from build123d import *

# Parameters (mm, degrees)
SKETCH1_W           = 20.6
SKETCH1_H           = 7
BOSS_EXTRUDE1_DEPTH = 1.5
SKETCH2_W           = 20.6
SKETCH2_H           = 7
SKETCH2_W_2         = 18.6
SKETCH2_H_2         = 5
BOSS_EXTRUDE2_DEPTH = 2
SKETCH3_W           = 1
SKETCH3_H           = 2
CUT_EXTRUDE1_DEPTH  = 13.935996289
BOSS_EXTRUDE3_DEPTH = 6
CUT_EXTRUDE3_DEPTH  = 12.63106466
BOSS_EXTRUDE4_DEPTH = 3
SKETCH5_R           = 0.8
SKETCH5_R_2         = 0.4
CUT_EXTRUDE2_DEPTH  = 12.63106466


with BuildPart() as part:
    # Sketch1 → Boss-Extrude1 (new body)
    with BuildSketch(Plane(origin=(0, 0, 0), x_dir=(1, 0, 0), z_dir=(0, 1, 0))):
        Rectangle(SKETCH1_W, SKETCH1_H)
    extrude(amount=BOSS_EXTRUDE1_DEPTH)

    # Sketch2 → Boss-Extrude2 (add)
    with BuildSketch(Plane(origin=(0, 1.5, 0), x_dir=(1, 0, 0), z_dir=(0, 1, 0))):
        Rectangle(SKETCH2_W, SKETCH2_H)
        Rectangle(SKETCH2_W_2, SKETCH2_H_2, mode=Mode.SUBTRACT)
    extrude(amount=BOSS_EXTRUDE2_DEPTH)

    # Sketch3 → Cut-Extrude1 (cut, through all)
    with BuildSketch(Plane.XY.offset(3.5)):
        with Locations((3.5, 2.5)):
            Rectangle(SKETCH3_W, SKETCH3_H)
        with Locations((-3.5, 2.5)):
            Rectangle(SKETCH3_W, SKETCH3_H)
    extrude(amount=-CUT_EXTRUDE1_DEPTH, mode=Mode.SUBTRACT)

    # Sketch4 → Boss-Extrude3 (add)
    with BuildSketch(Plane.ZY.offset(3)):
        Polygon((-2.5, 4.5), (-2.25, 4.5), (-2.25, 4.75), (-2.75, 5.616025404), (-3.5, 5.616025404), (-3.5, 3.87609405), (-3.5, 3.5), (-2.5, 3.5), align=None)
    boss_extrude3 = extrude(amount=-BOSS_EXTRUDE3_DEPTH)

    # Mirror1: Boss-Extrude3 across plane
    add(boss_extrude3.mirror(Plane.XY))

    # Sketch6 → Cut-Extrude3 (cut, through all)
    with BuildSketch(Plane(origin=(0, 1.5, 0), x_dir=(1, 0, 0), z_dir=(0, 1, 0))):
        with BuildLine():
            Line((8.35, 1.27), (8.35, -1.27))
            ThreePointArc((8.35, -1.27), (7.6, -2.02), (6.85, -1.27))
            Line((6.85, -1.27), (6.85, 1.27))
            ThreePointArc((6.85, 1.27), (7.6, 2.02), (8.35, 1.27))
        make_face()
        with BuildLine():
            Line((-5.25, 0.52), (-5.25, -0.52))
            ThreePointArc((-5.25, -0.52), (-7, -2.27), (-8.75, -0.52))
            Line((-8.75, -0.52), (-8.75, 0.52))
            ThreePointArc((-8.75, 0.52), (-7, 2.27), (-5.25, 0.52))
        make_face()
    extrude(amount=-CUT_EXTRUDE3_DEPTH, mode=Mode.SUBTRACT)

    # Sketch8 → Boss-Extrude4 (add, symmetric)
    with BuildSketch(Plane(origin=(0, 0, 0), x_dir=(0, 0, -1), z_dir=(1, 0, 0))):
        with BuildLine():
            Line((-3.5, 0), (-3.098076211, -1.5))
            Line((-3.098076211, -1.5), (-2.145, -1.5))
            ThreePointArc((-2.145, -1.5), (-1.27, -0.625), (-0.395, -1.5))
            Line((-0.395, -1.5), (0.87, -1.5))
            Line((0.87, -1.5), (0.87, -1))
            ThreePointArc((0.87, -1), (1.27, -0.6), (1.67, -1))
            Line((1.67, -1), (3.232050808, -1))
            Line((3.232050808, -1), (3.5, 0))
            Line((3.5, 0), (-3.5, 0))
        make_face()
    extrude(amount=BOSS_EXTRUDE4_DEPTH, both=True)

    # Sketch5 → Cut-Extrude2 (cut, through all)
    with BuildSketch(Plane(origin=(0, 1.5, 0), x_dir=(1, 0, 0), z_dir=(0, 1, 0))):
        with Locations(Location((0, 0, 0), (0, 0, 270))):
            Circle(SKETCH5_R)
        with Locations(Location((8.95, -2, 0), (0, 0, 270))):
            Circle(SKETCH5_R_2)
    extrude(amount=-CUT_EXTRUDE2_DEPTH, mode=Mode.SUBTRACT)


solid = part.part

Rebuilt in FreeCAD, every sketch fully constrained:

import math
import FreeCAD as App
import Part
import Sketcher
Q = App.Units.Quantity


def add_polygon(sketch, points):
    """Adds a closed chain of lines whose ends are joined by coincident constraints."""
    first, n = sketch.GeometryCount, len(points)
    for a, b in zip(points, points[1:] + points[:1]):
        sketch.addGeometry(Part.LineSegment(App.Vector(*a, 0), App.Vector(*b, 0)), False)
    for i in range(n):
        sketch.addConstraint(Sketcher.Constraint("Coincident", first + i, 2, first + (i + 1) % n, 1))

doc = App.newDocument("Part")
params = doc.addObject("Spreadsheet::Sheet", "Params")
for row, (alias, value) in enumerate([
    ("sketch1_height", "7 mm"),
    ("sketch1_width", "20.6 mm"),
    ("pad1_length", "1.5 mm"),
    ("sketch2_height", "7 mm"),
    ("sketch2_height2", "5 mm"),
    ("sketch2_width", "20.6 mm"),
    ("sketch2_width2", "18.6 mm"),
    ("pad2_length", "2 mm"),
    ("sketch3_width", "1 mm"),
    ("sketch3_height", "2 mm"),
    ("sketch4_width", "1 mm"),
    ("sketch4_length", "1 mm"),
    ("sketch4_width2", "0.25 mm"),
    ("pad3_length", "6 mm"),
    ("sketch5_radius", "0.75 mm"),
    ("sketch5_radius2", "1.75 mm"),
    ("sketch5_height", "2.54 mm"),
    ("sketch5_height2", "1.04 mm"),
    ("sketch6_radius", "0.4 mm"),
    ("sketch6_height", "7 mm"),
    ("sketch6_width", "0.5 mm"),
    ("pad4_length", "6 mm"),
    ("sketch7_diameter", "1.6 mm"),
    ("sketch7_diameter2", "0.8 mm"),
], start=1):
    params.set(f"A{row}", alias)
    params.set(f"B{row}", "=" + value)
    params.setAlias(f"B{row}", alias)

body = doc.addObject("PartDesign::Body", "Body")

# Sketch on XZ plane
sketch1 = body.newObject("Sketcher::SketchObject", "Sketch")
sketch1.AttachmentSupport = (doc.getObject("XZ_Plane"), [""])
sketch1.MapMode = "FlatFace"
add_polygon(sketch1, [(-10.3, -3.5), (-10.3, 3.5), (10.3, 3.5), (10.3, -3.5)])  # lines 0-3
sketch1.addConstraint([
    Sketcher.Constraint("Vertical", 0),
    Sketcher.Constraint("Horizontal", 1),
    Sketcher.Constraint("Vertical", 2),
    Sketcher.Constraint("Horizontal", 3),
    Sketcher.Constraint("Symmetric", 0, 2, 2, 2, -1, 1),
    Sketcher.Constraint("DistanceY", 0, 1, 0, 2, Q("7 mm")),
    Sketcher.Constraint("DistanceX", 1, 1, 1, 2, Q("20.6 mm")),
])
sketch1.setExpression("Constraints[9]", "Params.sketch1_height")
sketch1.setExpression("Constraints[10]", "Params.sketch1_width")
pad1 = body.newObject("PartDesign::Pad", "Pad")
pad1.Profile = sketch1
pad1.setExpression("Length", "Params.pad1_length")
pad1.Reversed = True

# Sketch on XZ plane
sketch2 = body.newObject("Sketcher::SketchObject", "Sketch001")
sketch2.AttachmentSupport = (doc.getObject("XZ_Plane"), [""])
sketch2.MapMode = "FlatFace"
sketch2.AttachmentOffset = App.Placement(App.Vector(0, 0, -1.5), App.Rotation())
add_polygon(sketch2, [(-10.3, -3.5), (-10.3, 3.5), (10.3, 3.5), (10.3, -3.5)])  # lines 0-3
add_polygon(sketch2, [(9.3, 2.5), (-9.3, 2.5), (-9.3, -2.5), (9.3, -2.5)])  # lines 4-7
sketch2.addConstraint([
    Sketcher.Constraint("Vertical", 0),
    Sketcher.Constraint("Horizontal", 1),
    Sketcher.Constraint("Vertical", 2),
    Sketcher.Constraint("Horizontal", 3),
    Sketcher.Constraint("Horizontal", 4),
    Sketcher.Constraint("Vertical", 5),
    Sketcher.Constraint("Horizontal", 6),
    Sketcher.Constraint("Vertical", 7),
    Sketcher.Constraint("Symmetric", 0, 2, 2, 2, -1, 1),
    Sketcher.Constraint("Symmetric", 4, 2, 6, 2, -1, 1),
    Sketcher.Constraint("DistanceY", 0, 1, 0, 2, Q("7 mm")),
    Sketcher.Constraint("DistanceY", 5, 2, 5, 1, Q("5 mm")),
    Sketcher.Constraint("DistanceX", 1, 1, 1, 2, Q("20.6 mm")),
    Sketcher.Constraint("DistanceX", 4, 2, 4, 1, Q("18.6 mm")),
])
sketch2.setExpression("Constraints[18]", "Params.sketch2_height")
sketch2.setExpression("Constraints[19]", "Params.sketch2_height2")
sketch2.setExpression("Constraints[20]", "Params.sketch2_width")
sketch2.setExpression("Constraints[21]", "Params.sketch2_width2")
pad2 = body.newObject("PartDesign::Pad", "Pad001")
pad2.Profile = sketch2
pad2.setExpression("Length", "Params.pad2_length")
pad2.Reversed = True

# Sketch on XY plane
sketch3 = body.newObject("Sketcher::SketchObject", "Sketch002")
sketch3.AttachmentSupport = (doc.getObject("XY_Plane"), [""])
sketch3.MapMode = "FlatFace"
sketch3.AttachmentOffset = App.Placement(App.Vector(0, 0, 3.5), App.Rotation())
add_polygon(sketch3, [(3, 3.5), (3, 1.5), (4, 1.5), (4, 3.5)])  # lines 0-3
add_polygon(sketch3, [(-4, 3.5), (-4, 1.5), (-3, 1.5), (-3, 3.5)])  # lines 4-7
sketch3.addConstraint([
    Sketcher.Constraint("Vertical", 0),
    Sketcher.Constraint("Horizontal", 1),
    Sketcher.Constraint("Vertical", 2),
    Sketcher.Constraint("Horizontal", 3),
    Sketcher.Constraint("Vertical", 4),
    Sketcher.Constraint("Horizontal", 5),
    Sketcher.Constraint("Vertical", 6),
    Sketcher.Constraint("Horizontal", 7),
    Sketcher.Constraint("Symmetric", 1, 2, 4, 2, -2),
    Sketcher.Constraint("Symmetric", 3, 2, 6, 2, -2),
    Sketcher.Constraint("DistanceX", 1, 1, 1, 2, Q("1 mm")),
    Sketcher.Constraint("DistanceY", 0, 2, 0, 1, Q("2 mm")),
    Sketcher.Constraint("DistanceX", -1, 1, 0, 2, Q("3 mm")),
    Sketcher.Constraint("DistanceY", -1, 1, 0, 2, Q("1.5 mm")),
])
sketch3.setExpression("Constraints[18]", "Params.sketch3_width")
sketch3.setExpression("Constraints[19]", "Params.sketch3_height")
pocket1 = body.newObject("PartDesign::Pocket", "Pocket")
pocket1.Profile = sketch3
pocket1.Type = "ThroughAll"

# Sketch on YZ plane
sketch4 = body.newObject("Sketcher::SketchObject", "Sketch003")
sketch4.AttachmentSupport = (doc.getObject("YZ_Plane"), [""])
sketch4.MapMode = "FlatFace"
sketch4.AttachmentOffset = App.Placement(App.Vector(0, 0, -3), App.Rotation())
add_polygon(sketch4, [(4.5, -2.5), (4.5, -2.25), (4.75, -2.25), (5.616025, -2.75), (5.616025, -3.5), (3.5, -3.5), (3.5, -2.5)])  # lines 0-6
sketch4.addConstraint([
    Sketcher.Constraint("Vertical", 0),
    Sketcher.Constraint("Horizontal", 1),
    Sketcher.Constraint("Vertical", 3),
    Sketcher.Constraint("Horizontal", 4),
    Sketcher.Constraint("Vertical", 5),
    Sketcher.Constraint("Horizontal", 6),
    Sketcher.Constraint("Equal", 1, 0),
    Sketcher.Constraint("Equal", 6, 5),
    Sketcher.Constraint("DistanceX", 6, 1, 6, 2, Q("1 mm")),
    Sketcher.Constraint("Angle", 2, Q("-30 deg")),
    Sketcher.Constraint("Distance", 2, Q("1 mm")),
    Sketcher.Constraint("DistanceX", 1, 1, 1, 2, Q("0.25 mm")),
    Sketcher.Constraint("DistanceX", -1, 1, 0, 2, Q("4.5 mm")),
    Sketcher.Constraint("DistanceY", 3, 2, -1, 1, Q("3.5 mm")),
])
sketch4.setExpression("Constraints[15]", "Params.sketch4_width")
sketch4.setExpression("Constraints[17]", "Params.sketch4_length")
sketch4.setExpression("Constraints[18]", "Params.sketch4_width2")
pad3 = body.newObject("PartDesign::Pad", "Pad002")
pad3.Profile = sketch4
pad3.setExpression("Length", "Params.pad3_length")
doc.recompute()

mirrored = body.newObject("PartDesign::Mirrored", "Mirrored")
mirrored.Originals = [pad3]
mirrored.MirrorPlane = (doc.getObject("XY_Plane"), [""])
body.Tip = mirrored

# Sketch on XZ plane
sketch5 = body.newObject("Sketcher::SketchObject", "Sketch004")
sketch5.AttachmentSupport = (doc.getObject("XZ_Plane"), [""])
sketch5.MapMode = "FlatFace"
sketch5.AttachmentOffset = App.Placement(App.Vector(0, 0, -1.5), App.Rotation())
sketch5.addGeometry([
    Part.LineSegment(App.Vector(8.35, 1.27, 0), App.Vector(8.35, -1.27, 0)),  # 0
    Part.ArcOfCircle(Part.Circle(App.Vector(7.6, -1.27, 0), App.Vector(0, 0, 1), 0.75), math.radians(180), math.radians(360)),  # 1
    Part.LineSegment(App.Vector(6.85, -1.27, 0), App.Vector(6.85, 1.27, 0)),  # 2
    Part.ArcOfCircle(Part.Circle(App.Vector(7.6, 1.27, 0), App.Vector(0, 0, 1), 0.75), math.radians(0), math.radians(180)),  # 3
    Part.LineSegment(App.Vector(-5.25, 0.52, 0), App.Vector(-5.25, -0.52, 0)),  # 4
    Part.ArcOfCircle(Part.Circle(App.Vector(-7, -0.52, 0), App.Vector(0, 0, 1), 1.75), math.radians(180), math.radians(360)),  # 5
    Part.LineSegment(App.Vector(-8.75, -0.52, 0), App.Vector(-8.75, 0.52, 0)),  # 6
    Part.ArcOfCircle(Part.Circle(App.Vector(-7, 0.52, 0), App.Vector(0, 0, 1), 1.75), math.radians(0), math.radians(180)),  # 7
], False)
sketch5.addConstraint([
    Sketcher.Constraint("Tangent", 0, 2, 1, 2),
    Sketcher.Constraint("Tangent", 1, 1, 2, 1),
    Sketcher.Constraint("Tangent", 2, 2, 3, 2),
    Sketcher.Constraint("Tangent", 3, 1, 0, 1),
    Sketcher.Constraint("Tangent", 4, 2, 5, 2),
    Sketcher.Constraint("Tangent", 5, 1, 6, 1),
    Sketcher.Constraint("Tangent", 6, 2, 7, 2),
    Sketcher.Constraint("Tangent", 7, 1, 4, 1),
    Sketcher.Constraint("Vertical", 0),
    Sketcher.Constraint("Vertical", 2),
    Sketcher.Constraint("Vertical", 4),
    Sketcher.Constraint("Vertical", 6),
    Sketcher.Constraint("Radius", 1, Q("0.75 mm")),
    Sketcher.Constraint("Radius", 5, Q("1.75 mm")),
    Sketcher.Constraint("DistanceX", 5, 3, -1, 1, Q("7 mm")),
    Sketcher.Constraint("DistanceY", 0, 2, 0, 1, Q("2.54 mm")),
    Sketcher.Constraint("DistanceY", 4, 2, 4, 1, Q("1.04 mm")),
    Sketcher.Constraint("DistanceX", -1, 1, 1, 3, Q("7.6 mm")),
    Sketcher.Constraint("DistanceY", 1, 3, -1, 1, Q("1.27 mm")),
    Sketcher.Constraint("DistanceY", 5, 3, -1, 1, Q("0.52 mm")),
])
sketch5.setExpression("Constraints[12]", "Params.sketch5_radius")
sketch5.setExpression("Constraints[13]", "Params.sketch5_radius2")
sketch5.setExpression("Constraints[15]", "Params.sketch5_height")
sketch5.setExpression("Constraints[16]", "Params.sketch5_height2")
pocket2 = body.newObject("PartDesign::Pocket", "Pocket001")
pocket2.Profile = sketch5
pocket2.Type = "ThroughAll"
pocket2.Reversed = True

# Sketch on YZ plane
sketch6 = body.newObject("Sketcher::SketchObject", "Sketch005")
sketch6.AttachmentSupport = (doc.getObject("YZ_Plane"), [""])
sketch6.MapMode = "FlatFace"
sketch6.addGeometry([
    Part.LineSegment(App.Vector(0, 3.5, 0), App.Vector(-1.5, 3.098076, 0)),  # 0
    Part.LineSegment(App.Vector(-1.5, 3.098076, 0), App.Vector(-1.5, 2.145, 0)),  # 1
    Part.ArcOfCircle(Part.Circle(App.Vector(-1.5, 1.27, 0), App.Vector(0, 0, 1), 0.875), math.radians(-90), math.radians(90)),  # 2
    Part.LineSegment(App.Vector(-1.5, 0.395, 0), App.Vector(-1.5, -0.87, 0)),  # 3
    Part.LineSegment(App.Vector(-1.5, -0.87, 0), App.Vector(-1, -0.87, 0)),  # 4
    Part.ArcOfCircle(Part.Circle(App.Vector(-1, -1.27, 0), App.Vector(0, 0, 1), 0.4), math.radians(-90), math.radians(90)),  # 5
    Part.LineSegment(App.Vector(-1, -1.67, 0), App.Vector(-1, -3.232051, 0)),  # 6
    Part.LineSegment(App.Vector(-1, -3.232051, 0), App.Vector(0, -3.5, 0)),  # 7
    Part.LineSegment(App.Vector(0, -3.5, 0), App.Vector(0, 3.5, 0)),  # 8
], False)
sketch6.addConstraint([
    Sketcher.Constraint("Coincident", 0, 2, 1, 1),
    Sketcher.Constraint("Coincident", 1, 2, 2, 2),
    Sketcher.Constraint("Coincident", 2, 1, 3, 1),
    Sketcher.Constraint("Coincident", 3, 2, 4, 1),
    Sketcher.Constraint("Tangent", 4, 2, 5, 2),
    Sketcher.Constraint("Coincident", 5, 1, 6, 1),
    Sketcher.Constraint("Coincident", 6, 2, 7, 1),
    Sketcher.Constraint("Coincident", 7, 2, 8, 1),
    Sketcher.Constraint("Coincident", 8, 2, 0, 1),
    Sketcher.Constraint("Vertical", 1),
    Sketcher.Constraint("Vertical", 3),
    Sketcher.Constraint("Horizontal", 4),
    Sketcher.Constraint("Vertical", 6),
    Sketcher.Constraint("Vertical", 8),
    Sketcher.Constraint("Symmetric", 7, 2, 8, 2, -1, 1),
    Sketcher.Constraint("Vertical", 2, 3, 0, 2),
    Sketcher.Constraint("Vertical", 1, 2, 2, 1),
    Sketcher.Constraint("Vertical", 4, 2, 5, 1),
    Sketcher.Constraint("Radius", 5, Q("0.4 mm")),
    Sketcher.Constraint("DistanceY", 8, 1, 8, 2, Q("7 mm")),
    Sketcher.Constraint("Angle", 0, Q("-165 deg")),
    Sketcher.Constraint("Angle", 7, Q("-15 deg")),
    Sketcher.Constraint("DistanceX", 4, 1, 4, 2, Q("0.5 mm")),
    Sketcher.Constraint("DistanceX", 5, 3, -1, 1, Q("1 mm")),
    Sketcher.Constraint("Radius", 2, Q("0.875 mm")),
    Sketcher.Constraint("DistanceY", 3, 2, 3, 1, Q("1.265 mm")),
    Sketcher.Constraint("DistanceY", -1, 1, 2, 3, Q("1.27 mm")),
])
sketch6.setExpression("Constraints[18]", "Params.sketch6_radius")
sketch6.setExpression("Constraints[19]", "Params.sketch6_height")
sketch6.setExpression("Constraints[22]", "Params.sketch6_width")
pad4 = body.newObject("PartDesign::Pad", "Pad003")
pad4.Profile = sketch6
pad4.setExpression("Length", "Params.pad4_length")
pad4.Midplane = True

# Sketch on XZ plane
sketch7 = body.newObject("Sketcher::SketchObject", "Sketch006")
sketch7.AttachmentSupport = (doc.getObject("XZ_Plane"), [""])
sketch7.MapMode = "FlatFace"
sketch7.AttachmentOffset = App.Placement(App.Vector(0, 0, -1.5), App.Rotation())
sketch7.addGeometry([
    Part.Circle(App.Vector(0, 0, 0), App.Vector(0, 0, 1), 0.8),
    Part.Circle(App.Vector(8.95, 2, 0), App.Vector(0, 0, 1), 0.4),
], False)
sketch7.addConstraint([
    Sketcher.Constraint("Coincident", 0, 3, -1, 1),
    Sketcher.Constraint("Diameter", 0, Q("1.6 mm")),
    Sketcher.Constraint("Diameter", 1, Q("0.8 mm")),
    Sketcher.Constraint("DistanceY", -1, 1, 1, 3, Q("2 mm")),
    Sketcher.Constraint("DistanceX", -1, 1, 1, 3, Q("8.95 mm")),
])
sketch7.setExpression("Constraints[1]", "Params.sketch7_diameter")
sketch7.setExpression("Constraints[2]", "Params.sketch7_diameter2")
pocket3 = body.newObject("PartDesign::Pocket", "Pocket002")
pocket3.Profile = sketch7
pocket3.Type = "ThroughAll"
pocket3.Reversed = True

doc.recompute()
